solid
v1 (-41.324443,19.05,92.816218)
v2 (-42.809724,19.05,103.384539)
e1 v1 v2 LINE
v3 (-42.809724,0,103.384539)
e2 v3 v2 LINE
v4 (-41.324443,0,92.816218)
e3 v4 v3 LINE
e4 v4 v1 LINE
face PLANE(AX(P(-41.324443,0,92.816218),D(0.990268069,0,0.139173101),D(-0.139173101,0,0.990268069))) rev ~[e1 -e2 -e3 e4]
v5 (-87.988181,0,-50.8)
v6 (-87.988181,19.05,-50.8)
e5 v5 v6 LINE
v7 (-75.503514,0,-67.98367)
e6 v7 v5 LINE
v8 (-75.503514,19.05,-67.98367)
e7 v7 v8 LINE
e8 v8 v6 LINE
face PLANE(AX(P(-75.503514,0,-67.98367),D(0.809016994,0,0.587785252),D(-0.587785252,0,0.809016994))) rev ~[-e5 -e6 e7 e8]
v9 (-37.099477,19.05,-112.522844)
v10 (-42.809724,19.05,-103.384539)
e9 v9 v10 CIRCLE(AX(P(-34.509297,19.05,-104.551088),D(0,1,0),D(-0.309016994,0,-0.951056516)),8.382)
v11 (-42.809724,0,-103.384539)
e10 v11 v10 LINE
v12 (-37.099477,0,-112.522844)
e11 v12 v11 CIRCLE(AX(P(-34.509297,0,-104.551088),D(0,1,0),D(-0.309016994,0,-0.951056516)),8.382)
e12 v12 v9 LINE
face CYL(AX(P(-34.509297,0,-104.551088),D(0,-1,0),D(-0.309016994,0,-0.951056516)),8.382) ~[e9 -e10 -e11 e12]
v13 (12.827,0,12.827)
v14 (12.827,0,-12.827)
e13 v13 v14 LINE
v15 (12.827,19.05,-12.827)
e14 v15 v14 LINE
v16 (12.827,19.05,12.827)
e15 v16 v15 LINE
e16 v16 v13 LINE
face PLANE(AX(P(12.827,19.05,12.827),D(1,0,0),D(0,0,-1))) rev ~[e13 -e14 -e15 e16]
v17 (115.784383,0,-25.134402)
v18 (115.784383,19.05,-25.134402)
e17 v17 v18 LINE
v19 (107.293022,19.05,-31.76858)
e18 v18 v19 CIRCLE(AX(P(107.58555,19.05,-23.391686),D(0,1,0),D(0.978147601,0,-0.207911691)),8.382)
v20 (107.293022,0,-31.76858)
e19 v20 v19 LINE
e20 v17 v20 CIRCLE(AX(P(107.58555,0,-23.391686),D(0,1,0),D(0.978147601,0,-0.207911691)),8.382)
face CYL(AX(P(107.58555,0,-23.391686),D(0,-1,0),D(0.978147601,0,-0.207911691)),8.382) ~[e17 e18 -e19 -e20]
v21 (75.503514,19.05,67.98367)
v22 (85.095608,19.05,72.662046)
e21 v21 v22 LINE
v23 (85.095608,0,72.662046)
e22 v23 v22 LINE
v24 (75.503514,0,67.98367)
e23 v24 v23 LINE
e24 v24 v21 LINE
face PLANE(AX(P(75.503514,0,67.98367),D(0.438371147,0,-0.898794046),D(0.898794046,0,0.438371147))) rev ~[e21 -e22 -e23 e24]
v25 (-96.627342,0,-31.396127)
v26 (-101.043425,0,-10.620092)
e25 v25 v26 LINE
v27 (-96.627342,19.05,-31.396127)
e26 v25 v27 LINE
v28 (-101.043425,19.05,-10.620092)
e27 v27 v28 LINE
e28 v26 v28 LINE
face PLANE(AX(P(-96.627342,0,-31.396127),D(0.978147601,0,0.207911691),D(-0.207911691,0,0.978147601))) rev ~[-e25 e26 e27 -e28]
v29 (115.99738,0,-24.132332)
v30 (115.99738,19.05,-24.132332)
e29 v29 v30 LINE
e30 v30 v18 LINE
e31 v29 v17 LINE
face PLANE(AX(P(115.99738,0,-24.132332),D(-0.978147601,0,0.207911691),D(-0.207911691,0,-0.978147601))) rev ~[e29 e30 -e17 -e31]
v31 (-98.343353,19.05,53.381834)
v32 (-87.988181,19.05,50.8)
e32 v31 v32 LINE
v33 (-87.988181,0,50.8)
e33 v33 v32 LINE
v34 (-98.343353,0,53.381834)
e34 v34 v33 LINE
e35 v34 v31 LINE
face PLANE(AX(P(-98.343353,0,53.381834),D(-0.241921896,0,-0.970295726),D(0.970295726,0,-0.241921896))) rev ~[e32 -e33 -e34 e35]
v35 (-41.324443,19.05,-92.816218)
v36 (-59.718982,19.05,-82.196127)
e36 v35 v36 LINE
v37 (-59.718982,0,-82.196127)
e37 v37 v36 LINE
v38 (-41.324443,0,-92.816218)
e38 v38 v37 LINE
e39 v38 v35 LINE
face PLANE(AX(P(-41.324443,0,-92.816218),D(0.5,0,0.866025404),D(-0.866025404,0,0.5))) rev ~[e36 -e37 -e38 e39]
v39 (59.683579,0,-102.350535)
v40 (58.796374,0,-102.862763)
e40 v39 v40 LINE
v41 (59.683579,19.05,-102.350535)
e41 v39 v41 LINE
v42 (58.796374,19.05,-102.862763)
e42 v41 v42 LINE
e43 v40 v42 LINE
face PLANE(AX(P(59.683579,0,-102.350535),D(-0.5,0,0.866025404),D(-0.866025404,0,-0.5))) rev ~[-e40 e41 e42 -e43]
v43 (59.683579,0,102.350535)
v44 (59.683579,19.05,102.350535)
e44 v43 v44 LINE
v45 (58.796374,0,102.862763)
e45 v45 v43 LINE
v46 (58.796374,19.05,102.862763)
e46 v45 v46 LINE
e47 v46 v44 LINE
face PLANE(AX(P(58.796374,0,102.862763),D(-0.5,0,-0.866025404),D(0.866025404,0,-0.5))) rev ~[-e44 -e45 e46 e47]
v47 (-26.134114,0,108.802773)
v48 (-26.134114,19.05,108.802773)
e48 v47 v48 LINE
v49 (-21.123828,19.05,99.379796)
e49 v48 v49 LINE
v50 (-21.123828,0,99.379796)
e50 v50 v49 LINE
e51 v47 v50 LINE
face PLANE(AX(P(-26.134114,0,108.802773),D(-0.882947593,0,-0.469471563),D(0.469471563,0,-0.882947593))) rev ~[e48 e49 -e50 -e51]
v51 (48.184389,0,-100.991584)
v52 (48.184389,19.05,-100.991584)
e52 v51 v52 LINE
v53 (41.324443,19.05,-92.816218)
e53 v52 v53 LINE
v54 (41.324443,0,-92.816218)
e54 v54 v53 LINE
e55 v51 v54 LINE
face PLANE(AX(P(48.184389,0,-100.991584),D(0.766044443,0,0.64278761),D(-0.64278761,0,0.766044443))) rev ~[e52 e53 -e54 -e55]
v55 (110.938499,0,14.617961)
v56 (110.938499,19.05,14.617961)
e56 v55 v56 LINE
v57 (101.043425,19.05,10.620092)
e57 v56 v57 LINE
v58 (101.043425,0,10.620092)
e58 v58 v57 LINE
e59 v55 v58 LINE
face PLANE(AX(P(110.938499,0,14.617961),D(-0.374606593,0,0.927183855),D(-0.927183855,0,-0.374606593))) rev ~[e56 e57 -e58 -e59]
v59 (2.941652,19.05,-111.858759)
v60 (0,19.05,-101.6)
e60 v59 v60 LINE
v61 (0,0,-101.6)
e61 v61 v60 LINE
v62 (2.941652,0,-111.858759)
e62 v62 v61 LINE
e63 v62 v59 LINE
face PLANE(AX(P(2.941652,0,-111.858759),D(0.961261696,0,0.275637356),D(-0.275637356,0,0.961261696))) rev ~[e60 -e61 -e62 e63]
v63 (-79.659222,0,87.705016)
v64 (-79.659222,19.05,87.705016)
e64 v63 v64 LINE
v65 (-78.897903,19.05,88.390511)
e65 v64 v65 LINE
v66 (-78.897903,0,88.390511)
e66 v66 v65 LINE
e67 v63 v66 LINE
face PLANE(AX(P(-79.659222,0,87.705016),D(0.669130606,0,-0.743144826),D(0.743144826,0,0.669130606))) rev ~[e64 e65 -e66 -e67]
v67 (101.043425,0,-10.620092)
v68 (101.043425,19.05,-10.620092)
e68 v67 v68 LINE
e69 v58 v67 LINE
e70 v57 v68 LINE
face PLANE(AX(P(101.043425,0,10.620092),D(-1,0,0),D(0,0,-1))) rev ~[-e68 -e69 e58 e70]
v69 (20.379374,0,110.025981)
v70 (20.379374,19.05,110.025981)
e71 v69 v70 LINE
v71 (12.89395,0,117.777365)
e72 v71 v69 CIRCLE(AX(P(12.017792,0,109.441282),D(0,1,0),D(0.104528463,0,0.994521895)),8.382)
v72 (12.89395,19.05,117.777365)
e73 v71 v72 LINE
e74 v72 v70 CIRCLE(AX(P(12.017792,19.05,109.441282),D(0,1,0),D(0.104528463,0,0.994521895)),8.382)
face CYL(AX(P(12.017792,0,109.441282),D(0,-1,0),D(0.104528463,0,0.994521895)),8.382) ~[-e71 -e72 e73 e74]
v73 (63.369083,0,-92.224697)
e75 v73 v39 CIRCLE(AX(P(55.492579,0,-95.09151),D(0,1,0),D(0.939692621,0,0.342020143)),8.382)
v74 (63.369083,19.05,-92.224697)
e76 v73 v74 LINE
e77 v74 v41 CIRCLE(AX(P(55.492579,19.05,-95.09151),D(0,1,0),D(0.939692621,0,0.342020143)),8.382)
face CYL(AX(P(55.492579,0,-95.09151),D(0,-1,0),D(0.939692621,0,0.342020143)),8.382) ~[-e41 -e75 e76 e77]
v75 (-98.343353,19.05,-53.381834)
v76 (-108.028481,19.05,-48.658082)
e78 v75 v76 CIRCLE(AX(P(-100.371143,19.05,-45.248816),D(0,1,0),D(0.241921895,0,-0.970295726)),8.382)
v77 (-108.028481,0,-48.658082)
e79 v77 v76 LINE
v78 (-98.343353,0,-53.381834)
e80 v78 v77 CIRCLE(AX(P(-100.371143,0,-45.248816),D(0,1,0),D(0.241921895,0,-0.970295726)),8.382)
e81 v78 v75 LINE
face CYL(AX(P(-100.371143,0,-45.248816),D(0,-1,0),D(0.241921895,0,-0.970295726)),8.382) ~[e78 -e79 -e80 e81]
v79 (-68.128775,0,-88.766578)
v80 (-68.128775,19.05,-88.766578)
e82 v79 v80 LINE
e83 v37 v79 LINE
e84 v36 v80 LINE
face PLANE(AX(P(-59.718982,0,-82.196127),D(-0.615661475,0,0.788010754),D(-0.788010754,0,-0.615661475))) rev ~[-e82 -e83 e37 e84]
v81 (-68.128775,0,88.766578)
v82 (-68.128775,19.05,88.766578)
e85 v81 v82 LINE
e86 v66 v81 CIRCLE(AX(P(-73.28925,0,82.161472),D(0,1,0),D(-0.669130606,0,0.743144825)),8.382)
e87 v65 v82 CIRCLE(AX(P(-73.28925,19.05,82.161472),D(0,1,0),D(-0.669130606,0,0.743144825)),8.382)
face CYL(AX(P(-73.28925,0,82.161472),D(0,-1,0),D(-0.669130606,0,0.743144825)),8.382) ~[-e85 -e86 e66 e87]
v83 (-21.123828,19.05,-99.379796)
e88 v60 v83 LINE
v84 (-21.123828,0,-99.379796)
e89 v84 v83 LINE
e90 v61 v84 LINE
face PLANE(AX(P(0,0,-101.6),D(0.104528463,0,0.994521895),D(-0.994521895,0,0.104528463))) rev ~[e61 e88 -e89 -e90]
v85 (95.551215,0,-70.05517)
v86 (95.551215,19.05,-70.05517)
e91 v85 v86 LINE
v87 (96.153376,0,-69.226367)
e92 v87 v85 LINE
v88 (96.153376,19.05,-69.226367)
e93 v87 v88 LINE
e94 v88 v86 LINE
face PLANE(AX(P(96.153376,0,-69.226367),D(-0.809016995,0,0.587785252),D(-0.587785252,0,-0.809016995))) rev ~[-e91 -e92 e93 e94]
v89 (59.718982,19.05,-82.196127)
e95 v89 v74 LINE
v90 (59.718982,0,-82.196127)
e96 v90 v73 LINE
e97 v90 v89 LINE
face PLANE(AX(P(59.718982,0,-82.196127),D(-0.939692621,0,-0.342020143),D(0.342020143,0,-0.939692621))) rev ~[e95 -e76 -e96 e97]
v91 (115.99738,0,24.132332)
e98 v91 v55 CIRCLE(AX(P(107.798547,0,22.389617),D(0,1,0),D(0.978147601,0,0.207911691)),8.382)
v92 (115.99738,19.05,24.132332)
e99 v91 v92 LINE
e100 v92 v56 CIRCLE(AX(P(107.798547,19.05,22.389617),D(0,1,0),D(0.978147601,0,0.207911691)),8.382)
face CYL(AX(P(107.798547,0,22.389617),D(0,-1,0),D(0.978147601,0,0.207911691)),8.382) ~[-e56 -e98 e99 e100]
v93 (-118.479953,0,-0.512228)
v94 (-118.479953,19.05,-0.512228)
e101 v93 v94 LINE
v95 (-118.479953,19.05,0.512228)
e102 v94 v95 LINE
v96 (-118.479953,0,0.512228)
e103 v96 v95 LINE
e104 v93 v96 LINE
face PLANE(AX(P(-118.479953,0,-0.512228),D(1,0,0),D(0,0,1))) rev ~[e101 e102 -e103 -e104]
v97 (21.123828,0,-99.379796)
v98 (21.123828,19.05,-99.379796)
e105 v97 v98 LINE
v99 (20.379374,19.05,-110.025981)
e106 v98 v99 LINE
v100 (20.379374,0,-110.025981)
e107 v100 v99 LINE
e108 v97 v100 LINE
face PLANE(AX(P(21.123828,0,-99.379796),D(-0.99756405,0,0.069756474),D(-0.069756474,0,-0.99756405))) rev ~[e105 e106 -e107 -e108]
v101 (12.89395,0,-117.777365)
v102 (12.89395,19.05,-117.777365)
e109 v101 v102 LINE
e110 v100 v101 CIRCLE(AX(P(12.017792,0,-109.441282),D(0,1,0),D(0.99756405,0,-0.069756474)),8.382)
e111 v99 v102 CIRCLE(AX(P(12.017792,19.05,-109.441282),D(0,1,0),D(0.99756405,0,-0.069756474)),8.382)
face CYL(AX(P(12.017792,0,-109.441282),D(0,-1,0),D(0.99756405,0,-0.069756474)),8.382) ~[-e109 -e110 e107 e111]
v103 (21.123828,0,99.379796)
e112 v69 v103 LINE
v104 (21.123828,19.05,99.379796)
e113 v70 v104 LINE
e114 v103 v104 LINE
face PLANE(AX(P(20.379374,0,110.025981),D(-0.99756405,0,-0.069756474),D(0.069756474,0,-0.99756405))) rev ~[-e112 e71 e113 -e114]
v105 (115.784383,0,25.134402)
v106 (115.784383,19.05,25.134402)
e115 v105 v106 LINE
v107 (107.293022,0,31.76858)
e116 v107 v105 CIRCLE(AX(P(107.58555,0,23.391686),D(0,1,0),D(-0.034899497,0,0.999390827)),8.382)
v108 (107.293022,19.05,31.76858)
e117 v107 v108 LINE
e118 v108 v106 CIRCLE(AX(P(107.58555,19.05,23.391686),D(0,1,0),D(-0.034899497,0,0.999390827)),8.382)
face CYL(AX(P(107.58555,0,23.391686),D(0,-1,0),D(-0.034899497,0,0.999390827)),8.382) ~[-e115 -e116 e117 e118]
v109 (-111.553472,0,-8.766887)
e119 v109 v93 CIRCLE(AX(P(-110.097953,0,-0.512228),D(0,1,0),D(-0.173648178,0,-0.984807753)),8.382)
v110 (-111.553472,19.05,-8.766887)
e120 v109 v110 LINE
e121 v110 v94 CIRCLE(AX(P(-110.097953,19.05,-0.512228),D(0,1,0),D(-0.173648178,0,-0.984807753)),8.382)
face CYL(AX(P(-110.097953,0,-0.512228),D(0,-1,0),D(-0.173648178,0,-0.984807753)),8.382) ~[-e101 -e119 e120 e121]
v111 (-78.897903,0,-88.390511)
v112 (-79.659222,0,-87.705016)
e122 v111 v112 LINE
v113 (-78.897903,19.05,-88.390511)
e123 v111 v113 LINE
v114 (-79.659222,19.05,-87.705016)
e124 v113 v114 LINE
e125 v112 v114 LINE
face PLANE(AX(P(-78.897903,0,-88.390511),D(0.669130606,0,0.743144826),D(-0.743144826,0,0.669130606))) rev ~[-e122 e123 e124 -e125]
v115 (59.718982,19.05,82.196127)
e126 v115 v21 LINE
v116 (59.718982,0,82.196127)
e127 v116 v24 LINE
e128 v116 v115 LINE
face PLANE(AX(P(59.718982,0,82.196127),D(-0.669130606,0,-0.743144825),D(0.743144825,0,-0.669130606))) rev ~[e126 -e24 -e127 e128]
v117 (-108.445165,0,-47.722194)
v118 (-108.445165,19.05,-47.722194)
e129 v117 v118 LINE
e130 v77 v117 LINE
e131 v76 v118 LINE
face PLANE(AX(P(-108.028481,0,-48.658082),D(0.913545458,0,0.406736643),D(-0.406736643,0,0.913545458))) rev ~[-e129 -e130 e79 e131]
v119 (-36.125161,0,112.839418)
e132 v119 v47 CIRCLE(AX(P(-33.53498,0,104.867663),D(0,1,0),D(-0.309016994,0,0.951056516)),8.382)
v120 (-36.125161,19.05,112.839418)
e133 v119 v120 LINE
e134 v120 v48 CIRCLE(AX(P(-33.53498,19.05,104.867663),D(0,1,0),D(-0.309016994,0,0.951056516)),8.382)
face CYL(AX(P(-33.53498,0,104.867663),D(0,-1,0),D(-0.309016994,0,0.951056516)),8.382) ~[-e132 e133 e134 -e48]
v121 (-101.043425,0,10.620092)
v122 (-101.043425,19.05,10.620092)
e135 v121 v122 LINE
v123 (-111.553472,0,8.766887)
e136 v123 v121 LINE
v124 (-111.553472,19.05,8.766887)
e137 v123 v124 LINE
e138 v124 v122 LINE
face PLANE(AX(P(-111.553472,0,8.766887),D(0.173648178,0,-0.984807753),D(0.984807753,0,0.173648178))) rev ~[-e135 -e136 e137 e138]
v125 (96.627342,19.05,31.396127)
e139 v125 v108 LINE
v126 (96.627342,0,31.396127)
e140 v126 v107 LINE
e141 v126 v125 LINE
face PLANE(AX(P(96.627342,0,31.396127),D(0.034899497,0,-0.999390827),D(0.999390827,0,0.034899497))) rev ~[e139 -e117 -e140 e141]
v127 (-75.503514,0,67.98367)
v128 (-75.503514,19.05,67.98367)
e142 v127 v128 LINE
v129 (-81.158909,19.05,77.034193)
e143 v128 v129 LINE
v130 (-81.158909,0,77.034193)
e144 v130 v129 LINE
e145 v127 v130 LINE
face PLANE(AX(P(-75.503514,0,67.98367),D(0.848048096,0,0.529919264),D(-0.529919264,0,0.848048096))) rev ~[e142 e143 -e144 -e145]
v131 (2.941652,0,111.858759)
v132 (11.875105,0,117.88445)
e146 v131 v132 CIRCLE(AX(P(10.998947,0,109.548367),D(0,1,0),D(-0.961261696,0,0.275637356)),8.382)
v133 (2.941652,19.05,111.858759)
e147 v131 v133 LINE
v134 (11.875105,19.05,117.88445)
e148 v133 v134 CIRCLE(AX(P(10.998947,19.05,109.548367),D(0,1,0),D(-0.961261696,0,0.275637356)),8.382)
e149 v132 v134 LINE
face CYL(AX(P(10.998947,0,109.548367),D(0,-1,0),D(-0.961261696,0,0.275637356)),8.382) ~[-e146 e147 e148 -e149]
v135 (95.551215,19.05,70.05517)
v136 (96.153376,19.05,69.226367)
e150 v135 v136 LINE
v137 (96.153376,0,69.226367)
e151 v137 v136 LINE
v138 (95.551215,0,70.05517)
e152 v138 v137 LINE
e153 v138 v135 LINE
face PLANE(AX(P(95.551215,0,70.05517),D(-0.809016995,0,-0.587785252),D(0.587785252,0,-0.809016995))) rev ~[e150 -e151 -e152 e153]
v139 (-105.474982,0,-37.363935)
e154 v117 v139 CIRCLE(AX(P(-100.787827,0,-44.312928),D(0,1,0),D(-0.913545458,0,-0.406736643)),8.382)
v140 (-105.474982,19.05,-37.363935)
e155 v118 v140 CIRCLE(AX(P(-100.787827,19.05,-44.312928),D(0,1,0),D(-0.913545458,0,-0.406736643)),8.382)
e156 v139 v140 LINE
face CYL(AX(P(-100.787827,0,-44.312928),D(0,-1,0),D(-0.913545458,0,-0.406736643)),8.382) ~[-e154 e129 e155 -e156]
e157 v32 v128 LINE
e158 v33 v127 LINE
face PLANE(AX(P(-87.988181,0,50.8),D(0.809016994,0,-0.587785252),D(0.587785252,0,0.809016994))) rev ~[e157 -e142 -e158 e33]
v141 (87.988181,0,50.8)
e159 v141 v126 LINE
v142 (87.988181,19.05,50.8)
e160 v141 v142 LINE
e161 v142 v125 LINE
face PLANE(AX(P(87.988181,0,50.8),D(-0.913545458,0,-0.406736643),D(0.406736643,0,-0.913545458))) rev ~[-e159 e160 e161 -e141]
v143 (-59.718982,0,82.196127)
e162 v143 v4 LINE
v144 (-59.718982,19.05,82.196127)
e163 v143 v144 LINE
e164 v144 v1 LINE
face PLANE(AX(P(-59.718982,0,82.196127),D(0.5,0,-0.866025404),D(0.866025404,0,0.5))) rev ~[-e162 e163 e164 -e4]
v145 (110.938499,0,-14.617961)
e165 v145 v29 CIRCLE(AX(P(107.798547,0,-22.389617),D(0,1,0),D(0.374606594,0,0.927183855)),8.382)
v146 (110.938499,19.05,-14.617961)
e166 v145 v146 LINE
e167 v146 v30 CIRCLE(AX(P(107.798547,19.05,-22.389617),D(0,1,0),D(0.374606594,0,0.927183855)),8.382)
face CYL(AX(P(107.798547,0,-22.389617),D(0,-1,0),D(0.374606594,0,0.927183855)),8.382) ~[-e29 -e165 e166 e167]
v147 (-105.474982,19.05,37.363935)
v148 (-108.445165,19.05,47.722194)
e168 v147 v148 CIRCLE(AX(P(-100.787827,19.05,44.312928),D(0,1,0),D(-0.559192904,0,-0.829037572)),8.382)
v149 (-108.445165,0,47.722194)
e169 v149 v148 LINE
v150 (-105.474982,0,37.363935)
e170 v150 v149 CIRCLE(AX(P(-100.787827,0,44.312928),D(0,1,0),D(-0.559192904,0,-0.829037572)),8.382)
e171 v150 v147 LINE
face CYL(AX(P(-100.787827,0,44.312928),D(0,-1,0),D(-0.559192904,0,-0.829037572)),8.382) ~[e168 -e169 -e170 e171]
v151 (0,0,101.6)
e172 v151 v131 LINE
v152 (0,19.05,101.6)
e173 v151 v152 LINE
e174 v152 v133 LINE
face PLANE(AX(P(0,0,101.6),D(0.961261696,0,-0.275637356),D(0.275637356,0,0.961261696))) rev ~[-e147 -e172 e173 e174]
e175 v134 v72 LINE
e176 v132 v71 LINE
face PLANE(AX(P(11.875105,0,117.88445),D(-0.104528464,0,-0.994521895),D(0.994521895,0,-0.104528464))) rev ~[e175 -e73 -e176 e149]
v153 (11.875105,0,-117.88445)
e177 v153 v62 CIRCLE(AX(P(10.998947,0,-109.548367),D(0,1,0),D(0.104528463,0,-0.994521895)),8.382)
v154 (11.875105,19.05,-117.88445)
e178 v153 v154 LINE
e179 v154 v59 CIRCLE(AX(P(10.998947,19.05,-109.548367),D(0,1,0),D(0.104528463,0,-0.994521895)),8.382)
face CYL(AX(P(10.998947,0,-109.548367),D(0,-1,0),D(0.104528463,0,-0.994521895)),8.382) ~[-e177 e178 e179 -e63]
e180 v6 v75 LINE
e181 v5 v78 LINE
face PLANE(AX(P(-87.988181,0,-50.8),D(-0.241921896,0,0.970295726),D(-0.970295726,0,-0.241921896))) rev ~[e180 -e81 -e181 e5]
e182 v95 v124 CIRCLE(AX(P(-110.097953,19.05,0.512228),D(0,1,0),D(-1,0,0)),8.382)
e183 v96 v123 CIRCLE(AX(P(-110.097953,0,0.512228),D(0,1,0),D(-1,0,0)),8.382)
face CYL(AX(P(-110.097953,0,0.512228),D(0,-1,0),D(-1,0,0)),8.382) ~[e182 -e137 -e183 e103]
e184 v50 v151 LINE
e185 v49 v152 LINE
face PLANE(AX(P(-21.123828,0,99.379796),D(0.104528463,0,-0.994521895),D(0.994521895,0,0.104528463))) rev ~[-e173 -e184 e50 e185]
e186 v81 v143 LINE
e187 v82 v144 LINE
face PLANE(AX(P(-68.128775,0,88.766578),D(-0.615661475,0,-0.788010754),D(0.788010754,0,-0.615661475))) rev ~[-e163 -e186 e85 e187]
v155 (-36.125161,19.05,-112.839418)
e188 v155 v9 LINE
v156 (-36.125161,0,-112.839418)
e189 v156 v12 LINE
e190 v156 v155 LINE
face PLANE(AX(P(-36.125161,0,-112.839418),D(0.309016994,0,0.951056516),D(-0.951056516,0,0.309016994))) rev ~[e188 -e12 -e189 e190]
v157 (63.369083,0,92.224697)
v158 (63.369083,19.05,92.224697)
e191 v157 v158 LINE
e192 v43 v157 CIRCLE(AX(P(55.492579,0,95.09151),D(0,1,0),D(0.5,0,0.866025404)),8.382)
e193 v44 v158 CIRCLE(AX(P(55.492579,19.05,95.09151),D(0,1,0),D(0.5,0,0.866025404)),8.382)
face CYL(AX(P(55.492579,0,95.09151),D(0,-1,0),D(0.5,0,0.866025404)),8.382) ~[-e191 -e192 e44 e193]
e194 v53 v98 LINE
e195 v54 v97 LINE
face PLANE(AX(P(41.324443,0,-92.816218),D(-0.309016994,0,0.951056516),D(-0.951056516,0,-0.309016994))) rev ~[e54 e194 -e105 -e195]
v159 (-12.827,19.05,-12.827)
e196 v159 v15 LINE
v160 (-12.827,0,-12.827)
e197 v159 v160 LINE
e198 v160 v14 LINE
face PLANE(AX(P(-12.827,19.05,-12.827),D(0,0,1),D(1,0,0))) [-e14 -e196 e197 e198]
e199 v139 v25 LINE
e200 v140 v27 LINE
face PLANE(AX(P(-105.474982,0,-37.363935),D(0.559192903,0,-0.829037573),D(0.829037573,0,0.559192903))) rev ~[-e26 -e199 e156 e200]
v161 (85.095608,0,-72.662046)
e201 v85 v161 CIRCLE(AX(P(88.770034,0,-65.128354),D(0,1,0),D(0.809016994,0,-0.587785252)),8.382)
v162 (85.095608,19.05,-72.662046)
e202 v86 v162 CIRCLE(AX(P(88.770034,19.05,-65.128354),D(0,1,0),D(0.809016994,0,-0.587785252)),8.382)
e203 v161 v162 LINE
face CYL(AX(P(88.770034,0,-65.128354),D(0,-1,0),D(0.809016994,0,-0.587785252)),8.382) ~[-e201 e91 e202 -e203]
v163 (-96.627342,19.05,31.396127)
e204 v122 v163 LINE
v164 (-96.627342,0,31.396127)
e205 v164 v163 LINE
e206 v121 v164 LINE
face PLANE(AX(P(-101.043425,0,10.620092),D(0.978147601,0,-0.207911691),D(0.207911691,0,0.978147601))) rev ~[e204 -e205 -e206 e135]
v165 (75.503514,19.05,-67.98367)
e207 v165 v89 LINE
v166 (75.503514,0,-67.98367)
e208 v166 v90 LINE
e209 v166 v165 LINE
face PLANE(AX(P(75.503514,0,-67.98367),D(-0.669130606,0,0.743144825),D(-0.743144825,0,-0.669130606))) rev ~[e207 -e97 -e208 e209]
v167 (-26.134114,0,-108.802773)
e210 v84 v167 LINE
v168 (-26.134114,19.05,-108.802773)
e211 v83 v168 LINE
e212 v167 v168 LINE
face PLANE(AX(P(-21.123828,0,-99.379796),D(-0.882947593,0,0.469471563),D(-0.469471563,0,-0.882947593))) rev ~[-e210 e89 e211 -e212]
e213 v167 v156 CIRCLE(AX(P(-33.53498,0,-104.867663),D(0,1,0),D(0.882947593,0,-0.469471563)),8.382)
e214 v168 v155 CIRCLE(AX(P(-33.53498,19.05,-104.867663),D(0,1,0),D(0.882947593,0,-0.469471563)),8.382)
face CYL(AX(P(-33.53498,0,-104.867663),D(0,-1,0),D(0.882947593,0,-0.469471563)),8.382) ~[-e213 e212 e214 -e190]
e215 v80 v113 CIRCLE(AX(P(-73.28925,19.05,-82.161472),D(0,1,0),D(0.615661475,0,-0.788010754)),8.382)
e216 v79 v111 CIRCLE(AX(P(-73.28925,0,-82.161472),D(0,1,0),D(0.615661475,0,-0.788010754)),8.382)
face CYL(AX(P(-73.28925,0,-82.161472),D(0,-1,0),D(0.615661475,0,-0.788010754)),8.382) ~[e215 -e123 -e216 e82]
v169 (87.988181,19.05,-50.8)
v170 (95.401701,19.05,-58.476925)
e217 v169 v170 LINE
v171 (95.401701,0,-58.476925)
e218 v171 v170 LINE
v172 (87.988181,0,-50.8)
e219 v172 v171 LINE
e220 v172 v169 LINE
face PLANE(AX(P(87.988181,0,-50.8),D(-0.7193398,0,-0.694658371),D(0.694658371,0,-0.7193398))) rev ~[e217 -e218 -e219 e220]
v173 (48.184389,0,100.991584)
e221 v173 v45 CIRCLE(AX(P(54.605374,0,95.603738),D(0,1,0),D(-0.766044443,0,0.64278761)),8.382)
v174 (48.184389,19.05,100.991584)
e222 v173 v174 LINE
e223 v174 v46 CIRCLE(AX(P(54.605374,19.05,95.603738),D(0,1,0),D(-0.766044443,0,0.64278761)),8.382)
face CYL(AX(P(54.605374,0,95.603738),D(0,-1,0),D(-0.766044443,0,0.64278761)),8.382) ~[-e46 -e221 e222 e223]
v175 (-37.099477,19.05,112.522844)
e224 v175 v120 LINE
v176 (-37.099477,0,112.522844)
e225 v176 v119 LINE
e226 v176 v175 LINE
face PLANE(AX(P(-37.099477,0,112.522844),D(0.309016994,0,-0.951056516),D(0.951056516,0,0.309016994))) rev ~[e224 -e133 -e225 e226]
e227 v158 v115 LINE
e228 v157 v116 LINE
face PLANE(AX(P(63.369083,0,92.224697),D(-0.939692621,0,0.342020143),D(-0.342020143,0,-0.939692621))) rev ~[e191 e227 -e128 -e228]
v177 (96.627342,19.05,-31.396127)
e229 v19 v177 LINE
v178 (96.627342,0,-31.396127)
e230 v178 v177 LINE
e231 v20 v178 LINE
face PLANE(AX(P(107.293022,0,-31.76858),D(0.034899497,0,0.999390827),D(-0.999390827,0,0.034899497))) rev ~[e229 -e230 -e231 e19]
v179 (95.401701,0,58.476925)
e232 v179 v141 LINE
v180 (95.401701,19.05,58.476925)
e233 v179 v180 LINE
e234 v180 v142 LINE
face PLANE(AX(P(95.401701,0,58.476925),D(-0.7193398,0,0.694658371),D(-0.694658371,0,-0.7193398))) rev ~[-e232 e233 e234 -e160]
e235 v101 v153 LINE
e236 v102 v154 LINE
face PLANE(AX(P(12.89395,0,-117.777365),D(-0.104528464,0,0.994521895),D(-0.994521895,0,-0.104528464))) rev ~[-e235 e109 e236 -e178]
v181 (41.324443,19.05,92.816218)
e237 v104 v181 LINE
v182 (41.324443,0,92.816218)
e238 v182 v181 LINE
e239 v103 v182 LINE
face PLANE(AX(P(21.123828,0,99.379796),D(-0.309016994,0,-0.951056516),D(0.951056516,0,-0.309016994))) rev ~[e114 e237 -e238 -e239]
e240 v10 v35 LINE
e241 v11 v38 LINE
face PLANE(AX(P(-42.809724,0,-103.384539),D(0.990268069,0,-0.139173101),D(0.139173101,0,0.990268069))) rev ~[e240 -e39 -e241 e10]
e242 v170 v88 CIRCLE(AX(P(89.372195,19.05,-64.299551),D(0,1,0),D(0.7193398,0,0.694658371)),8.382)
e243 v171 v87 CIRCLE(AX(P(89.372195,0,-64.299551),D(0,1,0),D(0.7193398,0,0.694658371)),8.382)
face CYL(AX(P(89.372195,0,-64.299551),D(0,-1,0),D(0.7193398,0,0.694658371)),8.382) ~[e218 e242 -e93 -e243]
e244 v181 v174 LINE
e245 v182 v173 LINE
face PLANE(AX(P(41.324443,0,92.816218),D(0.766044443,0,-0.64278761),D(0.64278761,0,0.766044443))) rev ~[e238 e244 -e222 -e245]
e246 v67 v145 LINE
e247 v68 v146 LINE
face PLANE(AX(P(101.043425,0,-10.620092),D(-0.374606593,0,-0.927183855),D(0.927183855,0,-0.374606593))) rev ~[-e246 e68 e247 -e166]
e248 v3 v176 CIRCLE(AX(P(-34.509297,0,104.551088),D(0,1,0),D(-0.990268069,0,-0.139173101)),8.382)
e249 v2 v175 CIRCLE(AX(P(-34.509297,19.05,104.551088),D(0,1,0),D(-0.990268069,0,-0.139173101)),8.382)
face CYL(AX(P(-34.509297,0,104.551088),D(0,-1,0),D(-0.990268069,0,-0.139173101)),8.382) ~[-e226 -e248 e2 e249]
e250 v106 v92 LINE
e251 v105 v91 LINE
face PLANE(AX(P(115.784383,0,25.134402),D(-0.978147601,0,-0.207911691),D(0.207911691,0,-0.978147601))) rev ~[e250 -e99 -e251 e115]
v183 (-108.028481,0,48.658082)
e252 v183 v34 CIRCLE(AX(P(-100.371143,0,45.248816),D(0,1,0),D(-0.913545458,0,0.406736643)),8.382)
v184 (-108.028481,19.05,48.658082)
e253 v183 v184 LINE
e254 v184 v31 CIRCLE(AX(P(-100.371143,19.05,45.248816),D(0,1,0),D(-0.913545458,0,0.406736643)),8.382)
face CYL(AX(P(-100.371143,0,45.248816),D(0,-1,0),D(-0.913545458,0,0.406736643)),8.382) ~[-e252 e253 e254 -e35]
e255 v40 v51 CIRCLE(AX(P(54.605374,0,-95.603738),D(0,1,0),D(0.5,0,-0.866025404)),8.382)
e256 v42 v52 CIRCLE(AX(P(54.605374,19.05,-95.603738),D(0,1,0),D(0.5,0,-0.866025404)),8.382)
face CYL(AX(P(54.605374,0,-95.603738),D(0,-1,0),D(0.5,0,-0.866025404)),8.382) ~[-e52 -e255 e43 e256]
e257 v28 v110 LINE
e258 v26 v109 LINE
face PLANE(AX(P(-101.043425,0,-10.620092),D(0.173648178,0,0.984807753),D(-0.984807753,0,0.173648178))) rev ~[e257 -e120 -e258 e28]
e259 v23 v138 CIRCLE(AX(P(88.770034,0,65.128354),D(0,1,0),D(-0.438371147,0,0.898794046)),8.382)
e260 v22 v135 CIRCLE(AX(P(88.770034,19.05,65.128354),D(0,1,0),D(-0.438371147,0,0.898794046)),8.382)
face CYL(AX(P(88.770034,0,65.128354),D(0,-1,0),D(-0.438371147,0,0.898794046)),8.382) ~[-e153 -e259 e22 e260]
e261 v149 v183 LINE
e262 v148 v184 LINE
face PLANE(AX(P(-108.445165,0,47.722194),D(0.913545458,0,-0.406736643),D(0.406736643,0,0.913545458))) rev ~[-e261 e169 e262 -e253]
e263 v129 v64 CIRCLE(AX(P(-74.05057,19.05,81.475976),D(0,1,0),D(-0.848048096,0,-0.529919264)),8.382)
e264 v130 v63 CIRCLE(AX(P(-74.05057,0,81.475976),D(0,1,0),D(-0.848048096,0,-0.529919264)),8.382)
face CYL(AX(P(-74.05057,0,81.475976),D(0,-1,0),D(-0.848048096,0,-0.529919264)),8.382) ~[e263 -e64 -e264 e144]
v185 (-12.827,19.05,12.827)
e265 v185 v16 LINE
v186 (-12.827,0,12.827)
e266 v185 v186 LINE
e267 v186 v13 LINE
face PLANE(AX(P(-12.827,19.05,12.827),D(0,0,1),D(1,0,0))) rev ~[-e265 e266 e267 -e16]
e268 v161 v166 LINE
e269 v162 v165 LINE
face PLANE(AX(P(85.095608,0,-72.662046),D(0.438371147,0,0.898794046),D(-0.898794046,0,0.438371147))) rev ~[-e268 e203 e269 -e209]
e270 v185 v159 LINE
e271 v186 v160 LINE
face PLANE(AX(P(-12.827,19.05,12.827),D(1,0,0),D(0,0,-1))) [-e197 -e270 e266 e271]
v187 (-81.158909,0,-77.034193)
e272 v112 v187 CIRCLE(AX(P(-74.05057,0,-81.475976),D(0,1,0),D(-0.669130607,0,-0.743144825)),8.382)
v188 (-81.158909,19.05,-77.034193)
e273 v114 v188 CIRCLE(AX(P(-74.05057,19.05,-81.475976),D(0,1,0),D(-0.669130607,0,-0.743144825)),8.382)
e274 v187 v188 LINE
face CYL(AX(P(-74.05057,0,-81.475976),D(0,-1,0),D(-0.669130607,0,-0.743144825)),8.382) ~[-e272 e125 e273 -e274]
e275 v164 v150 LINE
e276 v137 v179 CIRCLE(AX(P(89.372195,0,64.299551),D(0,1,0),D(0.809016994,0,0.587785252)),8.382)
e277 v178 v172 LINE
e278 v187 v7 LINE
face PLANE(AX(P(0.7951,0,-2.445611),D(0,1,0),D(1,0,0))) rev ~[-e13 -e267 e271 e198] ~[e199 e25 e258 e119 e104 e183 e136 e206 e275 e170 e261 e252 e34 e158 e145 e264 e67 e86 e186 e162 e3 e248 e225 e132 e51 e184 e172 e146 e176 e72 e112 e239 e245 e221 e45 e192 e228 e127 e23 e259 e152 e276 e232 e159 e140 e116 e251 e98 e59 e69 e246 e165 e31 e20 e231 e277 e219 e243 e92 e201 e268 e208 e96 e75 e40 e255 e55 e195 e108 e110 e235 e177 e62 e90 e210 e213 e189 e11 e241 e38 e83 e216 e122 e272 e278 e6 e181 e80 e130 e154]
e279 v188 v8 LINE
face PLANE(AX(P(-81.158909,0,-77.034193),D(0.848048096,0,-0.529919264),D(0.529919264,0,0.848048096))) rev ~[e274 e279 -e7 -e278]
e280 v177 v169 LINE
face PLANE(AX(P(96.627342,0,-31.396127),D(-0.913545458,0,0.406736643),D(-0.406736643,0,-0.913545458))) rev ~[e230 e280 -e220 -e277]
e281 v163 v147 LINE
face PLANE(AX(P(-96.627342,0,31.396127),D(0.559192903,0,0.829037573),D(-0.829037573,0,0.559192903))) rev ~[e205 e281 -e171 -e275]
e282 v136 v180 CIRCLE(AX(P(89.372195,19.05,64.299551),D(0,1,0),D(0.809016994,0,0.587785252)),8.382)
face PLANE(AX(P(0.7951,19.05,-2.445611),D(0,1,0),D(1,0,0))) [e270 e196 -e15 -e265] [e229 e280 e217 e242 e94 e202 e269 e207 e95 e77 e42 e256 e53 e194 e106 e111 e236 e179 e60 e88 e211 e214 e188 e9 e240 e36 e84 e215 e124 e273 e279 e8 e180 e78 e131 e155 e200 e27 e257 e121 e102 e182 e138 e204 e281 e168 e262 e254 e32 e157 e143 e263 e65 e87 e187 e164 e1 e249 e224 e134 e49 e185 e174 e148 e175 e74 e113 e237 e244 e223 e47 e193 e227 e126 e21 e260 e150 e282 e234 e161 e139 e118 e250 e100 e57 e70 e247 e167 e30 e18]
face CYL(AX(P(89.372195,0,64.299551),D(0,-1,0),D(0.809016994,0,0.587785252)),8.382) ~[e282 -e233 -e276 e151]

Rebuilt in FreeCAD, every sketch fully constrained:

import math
import FreeCAD as App
import Part
import Sketcher
from FreeCAD import Vector
Q = App.Units.Quantity

doc = App.newDocument("Part")
params = doc.addObject("Spreadsheet::Sheet", "Params")
for row, (alias, value) in enumerate([
    ("sketch1_radius", "0.33 in"),
    ("pad1_length", "0.75 in"),
    ("sketch2_diameter", "0.25 in"),
    ("sketch3_width", "1.01 in"),
], start=1):
    params.set(f"A{row}", alias)
    params.set(f"B{row}", "=" + value)
    params.setAlias(f"B{row}", alias)

body = doc.addObject("PartDesign::Body", "Body")

# Sketch on XZ plane
sketch1 = body.newObject("Sketcher::SketchObject", "Sketch")
sketch1.AttachmentSupport = (doc.getObject("XZ_Plane"), [""])
sketch1.MapMode = "FlatFace"
sketch1.addGeometry([
    Part.LineSegment(Vector(21.1, -99.4, 0), Vector(20.4, -110, 0)),  # 0
    Part.ArcOfCircle(Part.Circle(Vector(12, -109.4, 0), Vector(0, 0, 1), 8.4), math.radians(-84), math.radians(-4)),  # 1
    Part.LineSegment(Vector(12.9, -117.8, 0), Vector(11.9, -117.9, 0)),  # 2
    Part.ArcOfCircle(Part.Circle(Vector(11, -109.5, 0), Vector(0, 0, 1), 8.4), math.radians(-164), math.radians(-84)),  # 3
    Part.LineSegment(Vector(2.9, -111.9, 0), Vector(0, -101.6, 0)),  # 4
    Part.LineSegment(Vector(0, -101.6, 0), Vector(-21.1, -99.4, 0)),  # 5
    Part.LineSegment(Vector(-21.1, -99.4, 0), Vector(-26.1, -108.8, 0)),  # 6
    Part.ArcOfCircle(Part.Circle(Vector(-33.5, -104.9, 0), Vector(0, 0, 1), 8.4), math.radians(-108), math.radians(-28)),  # 7
    Part.LineSegment(Vector(-36.1, -112.8, 0), Vector(-37.1, -112.5, 0)),  # 8
    Part.ArcOfCircle(Part.Circle(Vector(-34.5, -104.6, 0), Vector(0, 0, 1), 8.4), math.radians(172), math.radians(252)),  # 9
    Part.LineSegment(Vector(-42.8, -103.4, 0), Vector(-41.3, -92.8, 0)),  # 10
    Part.LineSegment(Vector(-41.3, -92.8, 0), Vector(-59.7, -82.2, 0)),  # 11
    Part.LineSegment(Vector(-59.7, -82.2, 0), Vector(-68.1, -88.8, 0)),  # 12
    Part.ArcOfCircle(Part.Circle(Vector(-73.3, -82.2, 0), Vector(0, 0, 1), 8.4), math.radians(-132), math.radians(-52)),  # 13
    Part.LineSegment(Vector(-78.9, -88.4, 0), Vector(-79.7, -87.7, 0)),  # 14
    Part.ArcOfCircle(Part.Circle(Vector(-74.1, -81.5, 0), Vector(0, 0, 1), 8.4), math.radians(148), math.radians(228)),  # 15
    Part.LineSegment(Vector(-81.2, -77, 0), Vector(-75.5, -68, 0)),  # 16
    Part.LineSegment(Vector(-75.5, -68, 0), Vector(-88, -50.8, 0)),  # 17
    Part.LineSegment(Vector(-88, -50.8, 0), Vector(-98.3, -53.4, 0)),  # 18
    Part.ArcOfCircle(Part.Circle(Vector(-100.4, -45.2, 0), Vector(0, 0, 1), 8.4), math.radians(-156), math.radians(-76)),  # 19
    Part.LineSegment(Vector(-108, -48.7, 0), Vector(-108.4, -47.7, 0)),  # 20
    Part.ArcOfCircle(Part.Circle(Vector(-100.8, -44.3, 0), Vector(0, 0, 1), 8.4), math.radians(124), math.radians(204)),  # 21
    Part.LineSegment(Vector(-105.5, -37.4, 0), Vector(-96.6, -31.4, 0)),  # 22
    Part.LineSegment(Vector(-96.6, -31.4, 0), Vector(-101, -10.6, 0)),  # 23
    Part.LineSegment(Vector(-101, -10.6, 0), Vector(-111.6, -8.8, 0)),  # 24
    Part.ArcOfCircle(Part.Circle(Vector(-110.1, -0.5, 0), Vector(0, 0, 1), 8.4), math.radians(180), math.radians(260)),  # 25
    Part.LineSegment(Vector(-118.5, -0.5, 0), Vector(-118.5, 0.5, 0)),  # 26
    Part.ArcOfCircle(Part.Circle(Vector(-110.1, 0.5, 0), Vector(0, 0, 1), 8.4), math.radians(100), math.radians(180)),  # 27
    Part.LineSegment(Vector(-111.6, 8.8, 0), Vector(-101, 10.6, 0)),  # 28
    Part.LineSegment(Vector(-101, 10.6, 0), Vector(-96.6, 31.4, 0)),  # 29
    Part.LineSegment(Vector(-96.6, 31.4, 0), Vector(-105.5, 37.4, 0)),  # 30
    Part.ArcOfCircle(Part.Circle(Vector(-100.8, 44.3, 0), Vector(0, 0, 1), 8.4), math.radians(156), math.radians(236)),  # 31
    Part.LineSegment(Vector(-108.4, 47.7, 0), Vector(-108, 48.7, 0)),  # 32
    Part.ArcOfCircle(Part.Circle(Vector(-100.4, 45.2, 0), Vector(0, 0, 1), 8.4), math.radians(76), math.radians(156)),  # 33
    Part.LineSegment(Vector(-98.3, 53.4, 0), Vector(-88, 50.8, 0)),  # 34
    Part.LineSegment(Vector(-88, 50.8, 0), Vector(-75.5, 68, 0)),  # 35
    Part.LineSegment(Vector(-75.5, 68, 0), Vector(-81.2, 77, 0)),  # 36
    Part.ArcOfCircle(Part.Circle(Vector(-74.1, 81.5, 0), Vector(0, 0, 1), 8.4), math.radians(132), math.radians(212)),  # 37
    Part.LineSegment(Vector(-79.7, 87.7, 0), Vector(-78.9, 88.4, 0)),  # 38
    Part.ArcOfCircle(Part.Circle(Vector(-73.3, 82.2, 0), Vector(0, 0, 1), 8.4), math.radians(52), math.radians(132)),  # 39
    Part.LineSegment(Vector(-68.1, 88.8, 0), Vector(-59.7, 82.2, 0)),  # 40
    Part.LineSegment(Vector(-59.7, 82.2, 0), Vector(-41.3, 92.8, 0)),  # 41
    Part.LineSegment(Vector(-41.3, 92.8, 0), Vector(-42.8, 103.4, 0)),  # 42
    Part.ArcOfCircle(Part.Circle(Vector(-34.5, 104.6, 0), Vector(0, 0, 1), 8.4), math.radians(108), math.radians(188)),  # 43
    Part.LineSegment(Vector(-37.1, 112.5, 0), Vector(-36.1, 112.8, 0)),  # 44
    Part.ArcOfCircle(Part.Circle(Vector(-33.5, 104.9, 0), Vector(0, 0, 1), 8.4), math.radians(28), math.radians(108)),  # 45
    Part.LineSegment(Vector(-26.1, 108.8, 0), Vector(-21.1, 99.4, 0)),  # 46
    Part.LineSegment(Vector(-21.1, 99.4, 0), Vector(0, 101.6, 0)),  # 47
    Part.LineSegment(Vector(0, 101.6, 0), Vector(2.9, 111.9, 0)),  # 48
    Part.ArcOfCircle(Part.Circle(Vector(11, 109.5, 0), Vector(0, 0, 1), 8.4), math.radians(84), math.radians(164)),  # 49
    Part.LineSegment(Vector(11.9, 117.9, 0), Vector(12.9, 117.8, 0)),  # 50
    Part.ArcOfCircle(Part.Circle(Vector(12, 109.4, 0), Vector(0, 0, 1), 8.4), math.radians(4), math.radians(84)),  # 51
    Part.LineSegment(Vector(20.4, 110, 0), Vector(21.1, 99.4, 0)),  # 52
    Part.LineSegment(Vector(21.1, 99.4, 0), Vector(41.3, 92.8, 0)),  # 53
    Part.LineSegment(Vector(41.3, 92.8, 0), Vector(48.2, 101, 0)),  # 54
    Part.ArcOfCircle(Part.Circle(Vector(54.6, 95.6, 0), Vector(0, 0, 1), 8.4), math.radians(60), math.radians(140)),  # 55
    Part.LineSegment(Vector(58.8, 102.9, 0), Vector(59.7, 102.4, 0)),  # 56
    Part.ArcOfCircle(Part.Circle(Vector(55.5, 95.1, 0), Vector(0, 0, 1), 8.4), math.radians(-20), math.radians(60)),  # 57
    Part.LineSegment(Vector(63.4, 92.2, 0), Vector(59.7, 82.2, 0)),  # 58
    Part.LineSegment(Vector(59.7, 82.2, 0), Vector(75.5, 68, 0)),  # 59
    Part.LineSegment(Vector(75.5, 68, 0), Vector(85.1, 72.7, 0)),  # 60
    Part.ArcOfCircle(Part.Circle(Vector(88.8, 65.1, 0), Vector(0, 0, 1), 8.4), math.radians(36), math.radians(116)),  # 61
    Part.LineSegment(Vector(95.6, 70.1, 0), Vector(96.2, 69.2, 0)),  # 62
    Part.ArcOfCircle(Part.Circle(Vector(89.4, 64.3, 0), Vector(0, 0, 1), 8.4), math.radians(-44), math.radians(36)),  # 63
    Part.LineSegment(Vector(95.4, 58.5, 0), Vector(88, 50.8, 0)),  # 64
    Part.LineSegment(Vector(88, 50.8, 0), Vector(96.6, 31.4, 0)),  # 65
    Part.LineSegment(Vector(96.6, 31.4, 0), Vector(107.3, 31.8, 0)),  # 66
    Part.ArcOfCircle(Part.Circle(Vector(107.6, 23.4, 0), Vector(0, 0, 1), 8.4), math.radians(12), math.radians(92)),  # 67
    Part.LineSegment(Vector(115.8, 25.1, 0), Vector(116, 24.1, 0)),  # 68
    Part.ArcOfCircle(Part.Circle(Vector(107.8, 22.4, 0), Vector(0, 0, 1), 8.4), math.radians(-68), math.radians(12)),  # 69
    Part.LineSegment(Vector(110.9, 14.6, 0), Vector(101, 10.6, 0)),  # 70
    Part.LineSegment(Vector(101, 10.6, 0), Vector(101, -10.6, 0)),  # 71
    Part.LineSegment(Vector(101, -10.6, 0), Vector(110.9, -14.6, 0)),  # 72
    Part.ArcOfCircle(Part.Circle(Vector(107.8, -22.4, 0), Vector(0, 0, 1), 8.4), math.radians(-12), math.radians(68)),  # 73
    Part.LineSegment(Vector(116, -24.1, 0), Vector(115.8, -25.1, 0)),  # 74
    Part.ArcOfCircle(Part.Circle(Vector(107.6, -23.4, 0), Vector(0, 0, 1), 8.4), math.radians(-92), math.radians(-12)),  # 75
    Part.LineSegment(Vector(107.3, -31.8, 0), Vector(96.6, -31.4, 0)),  # 76
    Part.LineSegment(Vector(96.6, -31.4, 0), Vector(88, -50.8, 0)),  # 77
    Part.LineSegment(Vector(88, -50.8, 0), Vector(95.4, -58.5, 0)),  # 78
    Part.ArcOfCircle(Part.Circle(Vector(89.4, -64.3, 0), Vector(0, 0, 1), 8.4), math.radians(-36), math.radians(44)),  # 79
    Part.LineSegment(Vector(96.2, -69.2, 0), Vector(95.6, -70.1, 0)),  # 80
    Part.ArcOfCircle(Part.Circle(Vector(88.8, -65.1, 0), Vector(0, 0, 1), 8.4), math.radians(-116), math.radians(-36)),  # 81
    Part.LineSegment(Vector(85.1, -72.7, 0), Vector(75.5, -68, 0)),  # 82
    Part.LineSegment(Vector(75.5, -68, 0), Vector(59.7, -82.2, 0)),  # 83
    Part.LineSegment(Vector(59.7, -82.2, 0), Vector(63.4, -92.2, 0)),  # 84
    Part.ArcOfCircle(Part.Circle(Vector(55.5, -95.1, 0), Vector(0, 0, 1), 8.4), math.radians(-60), math.radians(20)),  # 85
    Part.LineSegment(Vector(59.7, -102.4, 0), Vector(58.8, -102.9, 0)),  # 86
    Part.ArcOfCircle(Part.Circle(Vector(54.6, -95.6, 0), Vector(0, 0, 1), 8.4), math.radians(-140), math.radians(-60)),  # 87
    Part.LineSegment(Vector(48.2, -101, 0), Vector(41.3, -92.8, 0)),  # 88
    Part.LineSegment(Vector(41.3, -92.8, 0), Vector(21.1, -99.4, 0)),  # 89
], False)
sketch1.addConstraint([
    Sketcher.Constraint("Tangent", 0, 2, 1, 2),
    Sketcher.Constraint("Tangent", 1, 1, 2, 1),
    Sketcher.Constraint("Tangent", 2, 2, 3, 2),
    Sketcher.Constraint("Tangent", 3, 1, 4, 1),
    Sketcher.Constraint("Coincident", 4, 2, 5, 1),
    Sketcher.Constraint("Coincident", 5, 2, 6, 1),
    Sketcher.Constraint("Tangent", 6, 2, 7, 2),
    Sketcher.Constraint("Tangent", 7, 1, 8, 1),
    Sketcher.Constraint("Tangent", 8, 2, 9, 2),
    Sketcher.Constraint("Tangent", 9, 1, 10, 1),
    Sketcher.Constraint("Coincident", 10, 2, 11, 1),
    Sketcher.Constraint("Coincident", 11, 2, 12, 1),
    Sketcher.Constraint("Tangent", 12, 2, 13, 2),
    Sketcher.Constraint("Tangent", 13, 1, 14, 1),
    Sketcher.Constraint("Tangent", 14, 2, 15, 2),
    Sketcher.Constraint("Tangent", 15, 1, 16, 1),
    Sketcher.Constraint("Coincident", 16, 2, 17, 1),
    Sketcher.Constraint("Coincident", 17, 2, 18, 1),
    Sketcher.Constraint("Tangent", 18, 2, 19, 2),
    Sketcher.Constraint("Tangent", 19, 1, 20, 1),
    Sketcher.Constraint("Tangent", 20, 2, 21, 2),
    Sketcher.Constraint("Tangent", 21, 1, 22, 1),
    Sketcher.Constraint("Coincident", 22, 2, 23, 1),
    Sketcher.Constraint("Coincident", 23, 2, 24, 1),
    Sketcher.Constraint("Tangent", 24, 2, 25, 2),
    Sketcher.Constraint("Tangent", 25, 1, 26, 1),
    Sketcher.Constraint("Tangent", 26, 2, 27, 2),
    Sketcher.Constraint("Tangent", 27, 1, 28, 1),
    Sketcher.Constraint("Coincident", 28, 2, 29, 1),
    Sketcher.Constraint("Coincident", 29, 2, 30, 1),
    Sketcher.Constraint("Tangent", 30, 2, 31, 2),
    Sketcher.Constraint("Tangent", 31, 1, 32, 1),
    Sketcher.Constraint("Tangent", 32, 2, 33, 2),
    Sketcher.Constraint("Tangent", 33, 1, 34, 1),
    Sketcher.Constraint("Coincident", 34, 2, 35, 1),
    Sketcher.Constraint("Coincident", 35, 2, 36, 1),
    Sketcher.Constraint("Tangent", 36, 2, 37, 2),
    Sketcher.Constraint("Tangent", 37, 1, 38, 1),
    Sketcher.Constraint("Tangent", 38, 2, 39, 2),
    Sketcher.Constraint("Tangent", 39, 1, 40, 1),
    Sketcher.Constraint("Coincident", 40, 2, 41, 1),
    Sketcher.Constraint("Coincident", 41, 2, 42, 1),
    Sketcher.Constraint("Tangent", 42, 2, 43, 2),
    Sketcher.Constraint("Tangent", 43, 1, 44, 1),
    Sketcher.Constraint("Tangent", 44, 2, 45, 2),
    Sketcher.Constraint("Tangent", 45, 1, 46, 1),
    Sketcher.Constraint("Coincident", 46, 2, 47, 1),
    Sketcher.Constraint("Coincident", 47, 2, 48, 1),
    Sketcher.Constraint("Tangent", 48, 2, 49, 2),
    Sketcher.Constraint("Tangent", 49, 1, 50, 1),
    Sketcher.Constraint("Tangent", 50, 2, 51, 2),
    Sketcher.Constraint("Tangent", 51, 1, 52, 1),
    Sketcher.Constraint("Coincident", 52, 2, 53, 1),
    Sketcher.Constraint("Coincident", 53, 2, 54, 1),
    Sketcher.Constraint("Tangent", 54, 2, 55, 2),
    Sketcher.Constraint("Tangent", 55, 1, 56, 1),
    Sketcher.Constraint("Tangent", 56, 2, 57, 2),
    Sketcher.Constraint("Tangent", 57, 1, 58, 1),
    Sketcher.Constraint("Coincident", 58, 2, 59, 1),
    Sketcher.Constraint("Coincident", 59, 2, 60, 1),
    Sketcher.Constraint("Tangent", 60, 2, 61, 2),
    Sketcher.Constraint("Tangent", 61, 1, 62, 1),
    Sketcher.Constraint("Tangent", 62, 2, 63, 2),
    Sketcher.Constraint("Tangent", 63, 1, 64, 1),
    Sketcher.Constraint("Coincident", 64, 2, 65, 1),
    Sketcher.Constraint("Coincident", 65, 2, 66, 1),
    Sketcher.Constraint("Tangent", 66, 2, 67, 2),
    Sketcher.Constraint("Tangent", 67, 1, 68, 1),
    Sketcher.Constraint("Tangent", 68, 2, 69, 2),
    Sketcher.Constraint("Tangent", 69, 1, 70, 1),
    Sketcher.Constraint("Coincident", 70, 2, 71, 1),
    Sketcher.Constraint("Coincident", 71, 2, 72, 1),
    Sketcher.Constraint("Tangent", 72, 2, 73, 2),
    Sketcher.Constraint("Tangent", 73, 1, 74, 1),
    Sketcher.Constraint("Tangent", 74, 2, 75, 2),
    Sketcher.Constraint("Tangent", 75, 1, 76, 1),
    Sketcher.Constraint("Coincident", 76, 2, 77, 1),
    Sketcher.Constraint("Coincident", 77, 2, 78, 1),
    Sketcher.Constraint("Tangent", 78, 2, 79, 2),
    Sketcher.Constraint("Tangent", 79, 1, 80, 1),
    Sketcher.Constraint("Tangent", 80, 2, 81, 2),
    Sketcher.Constraint("Tangent", 81, 1, 82, 1),
    Sketcher.Constraint("Coincident", 82, 2, 83, 1),
    Sketcher.Constraint("Coincident", 83, 2, 84, 1),
    Sketcher.Constraint("Tangent", 84, 2, 85, 2),
    Sketcher.Constraint("Tangent", 85, 1, 86, 1),
    Sketcher.Constraint("Tangent", 86, 2, 87, 2),
    Sketcher.Constraint("Tangent", 87, 1, 88, 1),
    Sketcher.Constraint("Coincident", 88, 2, 89, 1),
    Sketcher.Constraint("Coincident", 89, 2, 0, 1),
    Sketcher.Constraint("Vertical", 26),
    Sketcher.Constraint("Vertical", 71),
    Sketcher.Constraint("Equal", 1, 3),
    Sketcher.Constraint("Equal", 3, 7),
    Sketcher.Constraint("Equal", 7, 9),
    Sketcher.Constraint("Equal", 9, 13),
    Sketcher.Constraint("Equal", 13, 15),
    Sketcher.Constraint("Equal", 15, 19),
    Sketcher.Constraint("Equal", 19, 21),
    Sketcher.Constraint("Equal", 21, 25),
    Sketcher.Constraint("Equal", 25, 27),
    Sketcher.Constraint("Equal", 27, 31),
    Sketcher.Constraint("Equal", 31, 33),
    Sketcher.Constraint("Equal", 33, 37),
    Sketcher.Constraint("Equal", 37, 39),
    Sketcher.Constraint("Equal", 39, 43),
    Sketcher.Constraint("Equal", 43, 45),
    Sketcher.Constraint("Equal", 45, 49),
    Sketcher.Constraint("Equal", 49, 51),
    Sketcher.Constraint("Equal", 51, 55),
    Sketcher.Constraint("Equal", 55, 57),
    Sketcher.Constraint("Equal", 57, 61),
    Sketcher.Constraint("Equal", 61, 63),
    Sketcher.Constraint("Equal", 63, 67),
    Sketcher.Constraint("Equal", 67, 69),
    Sketcher.Constraint("Equal", 69, 73),
    Sketcher.Constraint("Equal", 73, 75),
    Sketcher.Constraint("Equal", 75, 79),
    Sketcher.Constraint("Equal", 79, 81),
    Sketcher.Constraint("Equal", 81, 85),
    Sketcher.Constraint("Equal", 85, 87),
    Sketcher.Constraint("Symmetric", 4, 2, 47, 2, -1, 1),
    Sketcher.Constraint("Symmetric", 5, 2, 52, 2, -1, 1),
    Sketcher.Constraint("Symmetric", 10, 2, 53, 2, -1, 1),
    Sketcher.Constraint("Symmetric", 11, 2, 58, 2, -1, 1),
    Sketcher.Constraint("Symmetric", 16, 2, 59, 2, -1, 1),
    Sketcher.Constraint("Symmetric", 17, 2, 64, 2, -1, 1),
    Sketcher.Constraint("Symmetric", 22, 2, 65, 2, -1, 1),
    Sketcher.Constraint("Symmetric", 23, 2, 70, 2, -1, 1),
    Sketcher.Constraint("Symmetric", 28, 2, 71, 2, -1, 1),
    Sketcher.Constraint("Symmetric", 29, 2, 76, 2, -1, 1),
    Sketcher.Constraint("Symmetric", 34, 2, 77, 2, -1, 1),
    Sketcher.Constraint("Symmetric", 35, 2, 82, 2, -1, 1),
    Sketcher.Constraint("Symmetric", 40, 2, 83, 2, -1, 1),
    Sketcher.Constraint("Symmetric", 41, 2, 88, 2, -1, 1),
    Sketcher.Constraint("Symmetric", 46, 2, 89, 2, -1, 1),
    Sketcher.Constraint("Symmetric", 46, 2, 52, 2, -2),
    Sketcher.Constraint("Symmetric", 41, 2, 53, 2, -2),
    Sketcher.Constraint("Symmetric", 40, 2, 58, 2, -2),
    Sketcher.Constraint("Symmetric", 35, 2, 59, 2, -2),
    Sketcher.Constraint("Symmetric", 34, 2, 64, 2, -2),
    Sketcher.Constraint("Symmetric", 29, 2, 65, 2, -2),
    Sketcher.Constraint("Symmetric", 21, 3, 31, 3, -1),
    Sketcher.Constraint("Symmetric", 19, 3, 33, 3, -1),
    Sketcher.Constraint("Symmetric", 15, 3, 37, 3, -1),
    Sketcher.Constraint("Symmetric", 13, 3, 39, 3, -1),
    Sketcher.Constraint("Symmetric", 9, 3, 43, 3, -1),
    Sketcher.Constraint("Symmetric", 7, 3, 45, 3, -1),
    Sketcher.Constraint("Symmetric", 3, 3, 49, 3, -1),
    Sketcher.Constraint("Symmetric", 1, 3, 51, 3, -1),
    Sketcher.Constraint("Symmetric", 69, 3, 73, 3, -1),
    Sketcher.Constraint("Symmetric", 67, 3, 75, 3, -1),
    Sketcher.Constraint("Symmetric", 63, 3, 79, 3, -1),
    Sketcher.Constraint("Symmetric", 61, 3, 81, 3, -1),
    Sketcher.Constraint("Symmetric", 57, 3, 85, 3, -1),
    Sketcher.Constraint("Symmetric", 55, 3, 87, 3, -1),
    Sketcher.Constraint("Symmetric", 24, 2, 27, 1, -1),
    Sketcher.Constraint("PointOnObject", 4, 2, -2),
    Sketcher.Constraint("Parallel", 2, 47),
    Sketcher.Constraint("Parallel", 8, 53),
    Sketcher.Constraint("Parallel", 11, 56),
    Sketcher.Constraint("Parallel", 14, 59),
    Sketcher.Constraint("Parallel", 17, 62),
    Sketcher.Constraint("Parallel", 20, 65),
    Sketcher.Constraint("Parallel", 23, 68),
    Sketcher.Constraint("Equal", 0, 4),
    Sketcher.Constraint("Equal", 4, 6),
    Sketcher.Constraint("Equal", 2, 8),
    Sketcher.Constraint("Equal", 6, 10),
    Sketcher.Constraint("Equal", 5, 11),
    Sketcher.Constraint("Equal", 10, 12),
    Sketcher.Constraint("Equal", 8, 14),
    Sketcher.Constraint("Equal", 12, 16),
    Sketcher.Constraint("Equal", 11, 17),
    Sketcher.Constraint("Equal", 16, 18),
    Sketcher.Constraint("Equal", 14, 20),
    Sketcher.Constraint("Equal", 18, 22),
    Sketcher.Constraint("Equal", 17, 23),
    Sketcher.Constraint("Equal", 22, 24),
    Sketcher.Constraint("Equal", 47, 53),
    Sketcher.Constraint("Equal", 52, 54),
    Sketcher.Constraint("Equal", 50, 56),
    Sketcher.Constraint("Equal", 54, 58),
    Sketcher.Constraint("Equal", 53, 59),
    Sketcher.Constraint("Equal", 58, 60),
    Sketcher.Constraint("Equal", 56, 62),
    Sketcher.Constraint("Equal", 60, 64),
    Sketcher.Constraint("Equal", 59, 65),
    Sketcher.Constraint("Equal", 64, 66),
    Sketcher.Constraint("Equal", 62, 68),
    Sketcher.Constraint("Equal", 66, 70),
    Sketcher.Constraint("Radius", 1, Q("0.33 in")),
    Sketcher.Constraint("DistanceY", 4, 2, -1, 1, Q("4 in")),
    Sketcher.Constraint("DistanceY", 17, 2, -1, 1, Q("2 in")),
    Sketcher.Constraint("Angle", 0, Q("-94 deg")),
    Sketcher.Constraint("Angle", 2, Q("-174 deg")),
    Sketcher.Constraint("Angle", 6, Q("-118 deg")),
    Sketcher.Constraint("Angle", 11, Q("150 deg")),
    Sketcher.Constraint("Angle", 12, Q("-142 deg")),
    Sketcher.Constraint("Angle", 17, Q("126 deg")),
    Sketcher.Constraint("Angle", 18, Q("-166 deg")),
    Sketcher.Constraint("Angle", 23, Q("102 deg")),
    Sketcher.Constraint("Angle", 24, Q("170 deg")),
    Sketcher.Constraint("DistanceX", -1, 1, 63, 1, Q("95.401701 mm")),
])
sketch1.setExpression("Constraints[191]", "Params.sketch1_radius")
pad1 = body.newObject("PartDesign::Pad", "Pad")
pad1.Profile = sketch1
pad1.setExpression("Length", "Params.pad1_length")
pad1.Reversed = True

# Sketch on XZ plane
sketch2 = body.newObject("Sketcher::SketchObject", "Sketch001")
sketch2.AttachmentSupport = (doc.getObject("XZ_Plane"), [""])
sketch2.MapMode = "FlatFace"
sketch2.AttachmentOffset = App.Placement(Vector(0, 0, -0.75 * 25.4), App.Rotation())
sketch2.addGeometry(Part.Circle(Vector(0, 0, 0), Vector(0, 0, 1), 3.2), False)
sketch2.addConstraint([
    Sketcher.Constraint("Coincident", 0, 3, -1, 1),
    Sketcher.Constraint("Diameter", 0, Q("0.25 in")),
])
sketch2.setExpression("Constraints[1]", "Params.sketch2_diameter")
pocket1 = body.newObject("PartDesign::Pocket", "Pocket")
pocket1.Profile = sketch2
pocket1.Type = "ThroughAll"
pocket1.Reversed = True

# Sketch on XZ plane
sketch3 = body.newObject("Sketcher::SketchObject", "Sketch002")
sketch3.AttachmentSupport = (doc.getObject("XZ_Plane"), [""])
sketch3.MapMode = "FlatFace"
sketch3.AttachmentOffset = App.Placement(Vector(0, 0, -0.75 * 25.4), App.Rotation())
sketch3.addGeometry([
    Part.LineSegment(Vector(-13, -13, 0), Vector(-13, 13, 0)),
    Part.LineSegment(Vector(-13, 13, 0), Vector(13, 13, 0)),
    Part.LineSegment(Vector(13, 13, 0), Vector(13, -13, 0)),
    Part.LineSegment(Vector(13, -13, 0), Vector(-13, -13, 0)),
], False)
sketch3.addConstraint([
    Sketcher.Constraint("Coincident", 0, 2, 1, 1),
    Sketcher.Constraint("Coincident", 1, 2, 2, 1),
    Sketcher.Constraint("Coincident", 2, 2, 3, 1),
    Sketcher.Constraint("Coincident", 3, 2, 0, 1),
    Sketcher.Constraint("Vertical", 0),
    Sketcher.Constraint("Horizontal", 1),
    Sketcher.Constraint("Vertical", 2),
    Sketcher.Constraint("Horizontal", 3),
    Sketcher.Constraint("Symmetric", 0, 2, 2, 2, -1, 1),
    Sketcher.Constraint("Equal", 3, 0),
    Sketcher.Constraint("DistanceX", 1, 1, 1, 2, Q("1.01 in")),
])
sketch3.setExpression("Constraints[10]", "Params.sketch3_width")
pocket2 = body.newObject("PartDesign::Pocket", "Pocket001")
pocket2.Profile = sketch3
pocket2.Type = "ThroughAll"
pocket2.Reversed = True

doc.recompute()
